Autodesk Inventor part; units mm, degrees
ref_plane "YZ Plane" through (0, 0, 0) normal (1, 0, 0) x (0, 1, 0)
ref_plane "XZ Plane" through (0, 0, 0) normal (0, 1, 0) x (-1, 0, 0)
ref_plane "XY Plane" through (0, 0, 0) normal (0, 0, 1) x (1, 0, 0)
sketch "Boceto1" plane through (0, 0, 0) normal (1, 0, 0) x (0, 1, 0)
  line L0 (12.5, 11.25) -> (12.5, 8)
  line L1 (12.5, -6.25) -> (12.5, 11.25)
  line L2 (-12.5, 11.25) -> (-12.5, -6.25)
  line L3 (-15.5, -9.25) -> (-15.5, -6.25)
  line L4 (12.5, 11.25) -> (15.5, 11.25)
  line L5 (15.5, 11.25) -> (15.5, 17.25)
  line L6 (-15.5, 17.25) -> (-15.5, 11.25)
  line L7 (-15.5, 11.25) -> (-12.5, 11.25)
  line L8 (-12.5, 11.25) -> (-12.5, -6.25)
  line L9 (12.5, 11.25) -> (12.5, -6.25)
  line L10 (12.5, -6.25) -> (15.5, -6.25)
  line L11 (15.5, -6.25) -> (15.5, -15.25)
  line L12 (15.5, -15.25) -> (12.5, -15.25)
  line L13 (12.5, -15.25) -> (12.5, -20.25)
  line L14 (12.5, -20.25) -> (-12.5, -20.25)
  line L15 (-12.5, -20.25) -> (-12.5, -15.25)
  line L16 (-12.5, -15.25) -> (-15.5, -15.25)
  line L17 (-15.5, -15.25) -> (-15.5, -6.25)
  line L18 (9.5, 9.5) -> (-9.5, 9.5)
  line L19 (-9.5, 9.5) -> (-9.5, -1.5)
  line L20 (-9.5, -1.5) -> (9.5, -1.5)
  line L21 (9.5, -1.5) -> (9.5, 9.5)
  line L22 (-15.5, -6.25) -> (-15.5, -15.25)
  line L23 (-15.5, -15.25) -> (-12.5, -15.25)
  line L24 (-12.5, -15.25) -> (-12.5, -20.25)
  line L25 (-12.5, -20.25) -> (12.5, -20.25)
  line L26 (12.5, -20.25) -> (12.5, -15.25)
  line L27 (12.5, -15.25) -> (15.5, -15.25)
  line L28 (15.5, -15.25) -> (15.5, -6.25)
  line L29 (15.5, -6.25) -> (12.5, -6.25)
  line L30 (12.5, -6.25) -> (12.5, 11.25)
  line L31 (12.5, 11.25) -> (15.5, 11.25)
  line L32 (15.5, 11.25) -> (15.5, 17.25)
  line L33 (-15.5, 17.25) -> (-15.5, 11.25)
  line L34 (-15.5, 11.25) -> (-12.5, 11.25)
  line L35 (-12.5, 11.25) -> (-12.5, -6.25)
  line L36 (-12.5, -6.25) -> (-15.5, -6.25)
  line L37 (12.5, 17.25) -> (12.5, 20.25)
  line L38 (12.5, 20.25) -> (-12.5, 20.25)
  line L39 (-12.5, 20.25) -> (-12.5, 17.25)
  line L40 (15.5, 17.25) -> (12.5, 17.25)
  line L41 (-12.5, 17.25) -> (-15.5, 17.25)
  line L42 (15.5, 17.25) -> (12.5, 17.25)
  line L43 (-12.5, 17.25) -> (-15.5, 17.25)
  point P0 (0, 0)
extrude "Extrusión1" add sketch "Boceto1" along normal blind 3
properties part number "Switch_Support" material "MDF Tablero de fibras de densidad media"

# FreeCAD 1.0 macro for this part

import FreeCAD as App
import Part
import Sketcher
from FreeCAD import Vector


def add_polygon(sketch, points):
    """Adds a closed chain of lines whose ends are joined by coincident constraints."""
    first, n = sketch.GeometryCount, len(points)
    for a, b in zip(points, points[1:] + points[:1]):
        sketch.addGeometry(Part.LineSegment(App.Vector(*a, 0), App.Vector(*b, 0)), False)
    for i in range(n):
        sketch.addConstraint(Sketcher.Constraint("Coincident", first + i, 2, first + (i + 1) % n, 1))

doc = App.newDocument("Part")
body = doc.addObject("PartDesign::Body", "Body")

# Sketch on YZ plane
sketch1 = doc.addObject("Sketcher::SketchObject", "Sketch")
body.addObject(sketch1)
sketch1.AttachmentSupport = (doc.YZ_Plane, [""])
sketch1.MapMode = "FlatFace"
add_polygon(sketch1, [(12.5, -6.2), (12.5, 11.2), (15.5, 11.2), (15.5, 17.2), (12.5, 17.2), (12.5, 20.2), (-12.5, 20.2), (-12.5, 17.2), (-15.5, 17.2), (-15.5, 11.2), (-12.5, 11.2), (-12.5, -6.2), (-15.5, -6.2), (-15.5, -15.2), (-12.5, -15.2), (-12.5, -20.2), (12.5, -20.2), (12.5, -15.2), (15.5, -15.2), (15.5, -6.2)])  # lines 0-19
add_polygon(sketch1, [(-9.5, 9.5), (9.5, 9.5), (9.5, -1.5), (-9.5, -1.5)])  # lines 20-23
sketch1.addConstraint([
    Sketcher.Constraint("Vertical", 0),
    Sketcher.Constraint("Horizontal", 1),
    Sketcher.Constraint("Vertical", 2),
    Sketcher.Constraint("Horizontal", 3),
    Sketcher.Constraint("Vertical", 4),
    Sketcher.Constraint("Horizontal", 5),
    Sketcher.Constraint("Vertical", 6),
    Sketcher.Constraint("Horizontal", 7),
    Sketcher.Constraint("Vertical", 8),
    Sketcher.Constraint("Horizontal", 9),
    Sketcher.Constraint("Vertical", 10),
    Sketcher.Constraint("Horizontal", 11),
    Sketcher.Constraint("Vertical", 12),
    Sketcher.Constraint("Horizontal", 13),
    Sketcher.Constraint("Vertical", 14),
    Sketcher.Constraint("Horizontal", 15),
    Sketcher.Constraint("Vertical", 16),
    Sketcher.Constraint("Horizontal", 17),
    Sketcher.Constraint("Vertical", 18),
    Sketcher.Constraint("Horizontal", 19),
    Sketcher.Constraint("Horizontal", 20),
    Sketcher.Constraint("Vertical", 21),
    Sketcher.Constraint("Horizontal", 22),
    Sketcher.Constraint("Vertical", 23),
    Sketcher.Constraint("Symmetric", 4, 2, 14, 2, -1, 1),
    Sketcher.Constraint("Symmetric", 3, 2, 6, 2, -2),
    Sketcher.Constraint("Symmetric", 1, 2, 8, 2, -2),
    Sketcher.Constraint("Symmetric", 13, 2, 16, 2, -2),
    Sketcher.Constraint("Symmetric", 11, 2, 18, 2, -2),
    Sketcher.Constraint("Vertical", 0, 2, 3, 2),
    Sketcher.Constraint("Vertical", 6, 2, 9, 2),
    Sketcher.Constraint("Vertical", 8, 2, 11, 2),
    Sketcher.Constraint("Equal", 19, 4),
    Sketcher.Constraint("DistanceX", 1, 1, 1, 2, 3.0),
    Sketcher.Constraint("DistanceX", 5, 2, 5, 1, 25.0),
    Sketcher.Constraint("DistanceX", 20, 1, 20, 2, 19.0),
    Sketcher.Constraint("DistanceY", 2, 1, 2, 2, 6.0),
    Sketcher.Constraint("DistanceY", 12, 2, 12, 1, 9.0),
    Sketcher.Constraint("DistanceY", 14, 2, 14, 1, 5.0),
    Sketcher.Constraint("DistanceY", 21, 2, 21, 1, 11.0),
    Sketcher.Constraint("DistanceY", 0, 1, 0, 2, 17.5),
    Sketcher.Constraint("DistanceX", 20, 2, 0, 2, 3.0),
    Sketcher.Constraint("DistanceY", -1, 1, 20, 2, 9.5),
])
pad1 = doc.addObject("PartDesign::Pad", "Pad")
body.addObject(pad1)
pad1.Profile = sketch1
pad1.Length = 3

doc.recompute()
